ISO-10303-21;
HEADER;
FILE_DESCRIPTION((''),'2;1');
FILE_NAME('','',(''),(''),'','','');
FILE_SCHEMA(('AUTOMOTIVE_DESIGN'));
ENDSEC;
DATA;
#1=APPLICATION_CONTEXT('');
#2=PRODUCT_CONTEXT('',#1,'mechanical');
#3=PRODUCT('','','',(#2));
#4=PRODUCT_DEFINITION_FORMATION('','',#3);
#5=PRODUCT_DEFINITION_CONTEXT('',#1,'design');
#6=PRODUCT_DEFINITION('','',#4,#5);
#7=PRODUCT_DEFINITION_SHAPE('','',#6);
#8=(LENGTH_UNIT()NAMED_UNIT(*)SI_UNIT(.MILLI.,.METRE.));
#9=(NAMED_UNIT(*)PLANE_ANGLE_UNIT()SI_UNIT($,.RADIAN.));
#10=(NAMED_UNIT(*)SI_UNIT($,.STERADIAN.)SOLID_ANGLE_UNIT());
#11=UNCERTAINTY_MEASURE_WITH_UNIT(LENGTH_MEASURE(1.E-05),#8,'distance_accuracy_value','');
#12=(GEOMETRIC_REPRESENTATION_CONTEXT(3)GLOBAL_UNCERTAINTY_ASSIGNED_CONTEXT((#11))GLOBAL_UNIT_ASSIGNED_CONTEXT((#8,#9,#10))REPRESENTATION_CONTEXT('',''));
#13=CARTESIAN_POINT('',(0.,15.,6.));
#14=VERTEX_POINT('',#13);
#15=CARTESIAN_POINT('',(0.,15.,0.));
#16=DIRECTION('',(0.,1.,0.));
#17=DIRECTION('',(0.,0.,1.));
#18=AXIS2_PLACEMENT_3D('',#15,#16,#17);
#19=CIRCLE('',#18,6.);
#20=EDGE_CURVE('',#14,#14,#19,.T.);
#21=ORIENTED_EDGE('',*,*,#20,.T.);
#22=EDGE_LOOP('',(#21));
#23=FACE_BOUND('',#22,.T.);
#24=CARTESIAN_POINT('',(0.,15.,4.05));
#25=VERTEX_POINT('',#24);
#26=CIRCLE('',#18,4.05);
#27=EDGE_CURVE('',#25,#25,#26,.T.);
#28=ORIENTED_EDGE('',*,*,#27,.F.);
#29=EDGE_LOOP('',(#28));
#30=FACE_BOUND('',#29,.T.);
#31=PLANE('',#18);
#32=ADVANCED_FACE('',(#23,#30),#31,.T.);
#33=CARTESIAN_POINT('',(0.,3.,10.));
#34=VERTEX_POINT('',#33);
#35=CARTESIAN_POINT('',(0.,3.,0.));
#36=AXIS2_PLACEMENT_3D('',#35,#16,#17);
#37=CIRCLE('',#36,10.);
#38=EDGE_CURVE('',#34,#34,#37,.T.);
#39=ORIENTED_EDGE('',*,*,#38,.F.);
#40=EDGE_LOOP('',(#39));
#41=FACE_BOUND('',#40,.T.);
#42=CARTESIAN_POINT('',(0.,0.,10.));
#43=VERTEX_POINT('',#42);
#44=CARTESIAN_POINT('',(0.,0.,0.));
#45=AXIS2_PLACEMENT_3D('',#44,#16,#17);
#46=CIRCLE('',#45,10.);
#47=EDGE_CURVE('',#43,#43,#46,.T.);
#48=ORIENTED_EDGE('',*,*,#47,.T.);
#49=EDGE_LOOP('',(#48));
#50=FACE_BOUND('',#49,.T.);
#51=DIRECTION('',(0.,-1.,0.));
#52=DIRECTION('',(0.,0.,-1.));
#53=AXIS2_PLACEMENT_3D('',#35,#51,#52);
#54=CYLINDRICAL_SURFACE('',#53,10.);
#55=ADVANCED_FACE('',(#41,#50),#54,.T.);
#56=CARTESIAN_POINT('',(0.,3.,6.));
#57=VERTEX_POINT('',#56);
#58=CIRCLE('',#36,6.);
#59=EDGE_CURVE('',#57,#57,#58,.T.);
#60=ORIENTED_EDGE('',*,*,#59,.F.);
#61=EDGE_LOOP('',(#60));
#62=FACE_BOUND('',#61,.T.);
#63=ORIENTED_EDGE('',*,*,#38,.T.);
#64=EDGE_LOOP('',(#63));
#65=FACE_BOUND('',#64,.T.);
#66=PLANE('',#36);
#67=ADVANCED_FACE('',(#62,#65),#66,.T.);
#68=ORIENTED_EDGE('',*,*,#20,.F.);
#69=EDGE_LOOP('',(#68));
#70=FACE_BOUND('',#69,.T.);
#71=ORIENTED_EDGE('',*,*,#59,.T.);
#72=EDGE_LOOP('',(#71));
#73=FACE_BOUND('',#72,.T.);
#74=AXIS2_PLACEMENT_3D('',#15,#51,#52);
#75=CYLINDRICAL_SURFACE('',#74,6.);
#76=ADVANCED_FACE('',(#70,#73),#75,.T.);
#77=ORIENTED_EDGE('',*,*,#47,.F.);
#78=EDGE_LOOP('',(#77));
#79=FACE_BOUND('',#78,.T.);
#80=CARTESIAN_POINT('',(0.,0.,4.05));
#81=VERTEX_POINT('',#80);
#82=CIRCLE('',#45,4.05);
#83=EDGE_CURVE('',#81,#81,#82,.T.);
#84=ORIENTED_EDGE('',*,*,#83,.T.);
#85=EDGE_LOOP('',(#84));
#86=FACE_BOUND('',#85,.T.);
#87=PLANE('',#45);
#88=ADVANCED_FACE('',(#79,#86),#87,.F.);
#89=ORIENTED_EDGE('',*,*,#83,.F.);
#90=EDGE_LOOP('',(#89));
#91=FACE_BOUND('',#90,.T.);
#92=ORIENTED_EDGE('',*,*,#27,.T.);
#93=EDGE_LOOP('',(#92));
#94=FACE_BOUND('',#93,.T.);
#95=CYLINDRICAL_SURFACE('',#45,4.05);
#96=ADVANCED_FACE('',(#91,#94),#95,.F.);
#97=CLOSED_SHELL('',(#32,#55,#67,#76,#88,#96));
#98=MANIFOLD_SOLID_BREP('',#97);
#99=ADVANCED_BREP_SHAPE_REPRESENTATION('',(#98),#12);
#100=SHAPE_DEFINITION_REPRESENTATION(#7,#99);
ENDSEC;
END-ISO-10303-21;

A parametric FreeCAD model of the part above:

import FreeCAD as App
import Part
import Sketcher

doc = App.newDocument("Part")
body = doc.addObject("PartDesign::Body", "Body")

# Sketch on XZ plane
sketch1 = body.newObject("Sketcher::SketchObject", "Sketch")
sketch1.AttachmentSupport = (doc.getObject("XZ_Plane"), [""])
sketch1.MapMode = "FlatFace"
sketch1.addGeometry(Part.Circle(App.Vector(0, 0, 0), App.Vector(0, 0, 1), 10), False)
sketch1.addConstraint([
    Sketcher.Constraint("Coincident", 0, 3, -1, 1),
    Sketcher.Constraint("Diameter", 0, 20.0),
])
pad1 = body.newObject("PartDesign::Pad", "Pad")
pad1.Profile = sketch1
pad1.Length = 3
pad1.Reversed = True

# Sketch on XZ plane
sketch2 = body.newObject("Sketcher::SketchObject", "Sketch001")
sketch2.AttachmentSupport = (doc.getObject("XZ_Plane"), [""])
sketch2.MapMode = "FlatFace"
sketch2.AttachmentOffset = App.Placement(App.Vector(0, 0, -3), App.Rotation())
sketch2.addGeometry(Part.Circle(App.Vector(0, 0, 0), App.Vector(0, 0, 1), 6), False)
sketch2.addConstraint([
    Sketcher.Constraint("Coincident", 0, 3, -1, 1),
    Sketcher.Constraint("Diameter", 0, 12.0),
])
pad2 = body.newObject("PartDesign::Pad", "Pad001")
pad2.Profile = sketch2
pad2.Length = 12
pad2.Reversed = True

# Sketch on XZ plane
sketch3 = body.newObject("Sketcher::SketchObject", "Sketch002")
sketch3.AttachmentSupport = (doc.getObject("XZ_Plane"), [""])
sketch3.MapMode = "FlatFace"
sketch3.AttachmentOffset = App.Placement(App.Vector(0, 0, -15), App.Rotation())
sketch3.addGeometry(Part.Circle(App.Vector(0, 0, 0), App.Vector(0, 0, 1), 4), False)
sketch3.addConstraint([
    Sketcher.Constraint("Coincident", 0, 3, -1, 1),
    Sketcher.Constraint("Diameter", 0, 8.1),
])
pocket1 = body.newObject("PartDesign::Pocket", "Pocket")
pocket1.Profile = sketch3
pocket1.Type = "ThroughAll"
pocket1.Reversed = True

doc.recompute()
